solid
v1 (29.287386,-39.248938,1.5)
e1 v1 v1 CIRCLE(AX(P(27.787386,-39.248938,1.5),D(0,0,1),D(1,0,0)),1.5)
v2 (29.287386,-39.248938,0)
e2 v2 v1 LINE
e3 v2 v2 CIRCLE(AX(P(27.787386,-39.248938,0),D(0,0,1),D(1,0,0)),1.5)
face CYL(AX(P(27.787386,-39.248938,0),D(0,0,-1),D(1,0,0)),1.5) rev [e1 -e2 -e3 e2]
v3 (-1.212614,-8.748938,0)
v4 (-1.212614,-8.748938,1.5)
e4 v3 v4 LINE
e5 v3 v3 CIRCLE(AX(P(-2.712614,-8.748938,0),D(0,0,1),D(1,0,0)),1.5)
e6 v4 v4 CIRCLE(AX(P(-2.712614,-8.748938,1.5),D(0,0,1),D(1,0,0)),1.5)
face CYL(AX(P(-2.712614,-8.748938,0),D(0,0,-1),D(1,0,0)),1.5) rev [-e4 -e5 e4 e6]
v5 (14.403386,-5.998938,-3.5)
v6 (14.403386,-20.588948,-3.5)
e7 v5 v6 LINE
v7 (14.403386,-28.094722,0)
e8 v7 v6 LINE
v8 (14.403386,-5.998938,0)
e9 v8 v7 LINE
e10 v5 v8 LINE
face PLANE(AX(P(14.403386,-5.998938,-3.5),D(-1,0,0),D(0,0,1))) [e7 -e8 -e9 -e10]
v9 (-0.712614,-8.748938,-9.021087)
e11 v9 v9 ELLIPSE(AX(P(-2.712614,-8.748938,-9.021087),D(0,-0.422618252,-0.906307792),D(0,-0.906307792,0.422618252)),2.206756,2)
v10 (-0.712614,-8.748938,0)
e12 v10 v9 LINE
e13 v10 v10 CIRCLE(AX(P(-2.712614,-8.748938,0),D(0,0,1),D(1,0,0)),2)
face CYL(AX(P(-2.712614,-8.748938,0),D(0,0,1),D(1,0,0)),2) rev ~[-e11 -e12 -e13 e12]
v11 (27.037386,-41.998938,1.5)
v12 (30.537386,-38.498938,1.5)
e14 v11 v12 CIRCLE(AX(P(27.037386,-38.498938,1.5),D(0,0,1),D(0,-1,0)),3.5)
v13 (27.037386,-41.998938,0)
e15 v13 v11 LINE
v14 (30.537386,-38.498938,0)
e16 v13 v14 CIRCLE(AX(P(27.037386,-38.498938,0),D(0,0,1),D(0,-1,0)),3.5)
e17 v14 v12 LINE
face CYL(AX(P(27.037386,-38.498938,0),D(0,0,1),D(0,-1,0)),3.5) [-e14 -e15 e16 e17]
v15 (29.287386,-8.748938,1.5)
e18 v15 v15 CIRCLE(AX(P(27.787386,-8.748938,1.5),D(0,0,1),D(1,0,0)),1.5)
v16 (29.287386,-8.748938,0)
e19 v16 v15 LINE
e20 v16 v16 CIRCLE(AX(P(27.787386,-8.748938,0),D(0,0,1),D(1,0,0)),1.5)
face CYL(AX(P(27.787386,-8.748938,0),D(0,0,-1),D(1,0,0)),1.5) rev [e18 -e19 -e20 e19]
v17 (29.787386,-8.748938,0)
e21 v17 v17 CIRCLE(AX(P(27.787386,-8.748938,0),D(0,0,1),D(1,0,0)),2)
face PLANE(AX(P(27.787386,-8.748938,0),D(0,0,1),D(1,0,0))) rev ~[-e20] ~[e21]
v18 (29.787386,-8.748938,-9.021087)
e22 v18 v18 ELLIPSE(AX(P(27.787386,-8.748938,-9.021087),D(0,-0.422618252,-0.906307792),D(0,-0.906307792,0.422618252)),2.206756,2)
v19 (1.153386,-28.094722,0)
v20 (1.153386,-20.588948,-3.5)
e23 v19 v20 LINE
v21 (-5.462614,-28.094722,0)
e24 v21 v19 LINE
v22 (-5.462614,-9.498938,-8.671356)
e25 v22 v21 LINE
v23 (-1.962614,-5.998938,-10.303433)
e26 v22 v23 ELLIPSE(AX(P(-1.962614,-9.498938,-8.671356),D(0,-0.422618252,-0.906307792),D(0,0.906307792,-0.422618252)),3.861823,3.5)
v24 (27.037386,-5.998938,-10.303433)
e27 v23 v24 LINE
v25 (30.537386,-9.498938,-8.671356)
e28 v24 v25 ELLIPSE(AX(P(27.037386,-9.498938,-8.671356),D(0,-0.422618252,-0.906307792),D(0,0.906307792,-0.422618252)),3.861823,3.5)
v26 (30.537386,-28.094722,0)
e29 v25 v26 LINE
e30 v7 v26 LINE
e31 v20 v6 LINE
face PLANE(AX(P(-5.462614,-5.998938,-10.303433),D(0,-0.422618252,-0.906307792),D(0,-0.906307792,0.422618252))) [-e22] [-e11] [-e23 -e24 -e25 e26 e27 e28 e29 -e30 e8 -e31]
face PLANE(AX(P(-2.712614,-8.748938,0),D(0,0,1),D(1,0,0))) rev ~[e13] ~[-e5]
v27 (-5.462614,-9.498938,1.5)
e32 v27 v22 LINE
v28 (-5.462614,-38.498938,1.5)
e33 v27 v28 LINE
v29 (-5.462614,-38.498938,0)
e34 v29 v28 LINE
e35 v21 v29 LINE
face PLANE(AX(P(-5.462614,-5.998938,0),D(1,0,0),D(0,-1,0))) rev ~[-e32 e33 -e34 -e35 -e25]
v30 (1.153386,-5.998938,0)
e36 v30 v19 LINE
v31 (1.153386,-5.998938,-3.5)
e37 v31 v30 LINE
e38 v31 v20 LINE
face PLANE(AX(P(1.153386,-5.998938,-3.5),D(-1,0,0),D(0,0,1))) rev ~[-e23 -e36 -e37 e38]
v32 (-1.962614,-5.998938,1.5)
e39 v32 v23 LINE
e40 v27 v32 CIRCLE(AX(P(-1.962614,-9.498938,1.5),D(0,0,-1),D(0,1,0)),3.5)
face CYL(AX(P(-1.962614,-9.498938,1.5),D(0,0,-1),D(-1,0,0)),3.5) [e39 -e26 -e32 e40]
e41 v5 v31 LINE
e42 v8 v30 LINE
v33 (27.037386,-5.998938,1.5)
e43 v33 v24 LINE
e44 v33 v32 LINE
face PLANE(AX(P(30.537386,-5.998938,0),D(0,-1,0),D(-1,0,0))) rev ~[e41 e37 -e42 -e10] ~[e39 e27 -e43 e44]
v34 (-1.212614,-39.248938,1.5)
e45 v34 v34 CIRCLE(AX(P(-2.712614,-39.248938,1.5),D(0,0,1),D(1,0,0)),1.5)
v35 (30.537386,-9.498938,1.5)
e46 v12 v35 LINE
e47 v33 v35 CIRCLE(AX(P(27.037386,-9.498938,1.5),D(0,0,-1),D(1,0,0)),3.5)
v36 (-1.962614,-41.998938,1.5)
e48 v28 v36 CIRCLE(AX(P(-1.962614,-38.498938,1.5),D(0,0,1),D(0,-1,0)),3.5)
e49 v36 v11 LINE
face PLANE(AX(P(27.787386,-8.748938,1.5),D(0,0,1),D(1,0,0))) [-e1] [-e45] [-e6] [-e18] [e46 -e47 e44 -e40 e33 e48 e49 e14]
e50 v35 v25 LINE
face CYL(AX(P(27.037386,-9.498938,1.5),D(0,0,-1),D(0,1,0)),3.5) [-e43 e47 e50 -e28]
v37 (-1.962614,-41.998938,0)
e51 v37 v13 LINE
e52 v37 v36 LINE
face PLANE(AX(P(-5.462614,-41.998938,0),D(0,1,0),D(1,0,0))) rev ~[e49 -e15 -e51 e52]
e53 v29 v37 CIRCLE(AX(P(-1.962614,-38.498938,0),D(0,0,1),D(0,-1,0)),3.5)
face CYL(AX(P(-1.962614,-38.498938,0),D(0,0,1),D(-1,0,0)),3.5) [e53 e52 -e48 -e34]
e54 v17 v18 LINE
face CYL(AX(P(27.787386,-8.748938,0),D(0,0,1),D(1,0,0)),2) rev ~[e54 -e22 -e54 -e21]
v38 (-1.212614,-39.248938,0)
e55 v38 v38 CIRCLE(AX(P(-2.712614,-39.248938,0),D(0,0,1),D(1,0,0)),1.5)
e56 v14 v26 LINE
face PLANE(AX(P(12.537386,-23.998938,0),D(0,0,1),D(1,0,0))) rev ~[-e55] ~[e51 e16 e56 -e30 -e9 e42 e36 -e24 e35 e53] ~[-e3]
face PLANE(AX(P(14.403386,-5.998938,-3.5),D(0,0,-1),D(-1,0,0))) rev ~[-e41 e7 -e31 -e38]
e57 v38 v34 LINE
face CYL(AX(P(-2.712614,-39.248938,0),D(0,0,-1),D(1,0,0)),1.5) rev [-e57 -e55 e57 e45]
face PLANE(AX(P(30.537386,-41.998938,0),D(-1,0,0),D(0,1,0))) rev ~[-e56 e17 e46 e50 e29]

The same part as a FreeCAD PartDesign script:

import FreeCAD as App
import Part
import Sketcher

V = App.Vector
Q = App.Units.Quantity


def edges_at(feature, points):
    """Names of the edges that pass closest to the given points."""
    edges = feature.Shape.Edges
    near = lambda p: min(range(len(edges)), key=lambda i: edges[i].distToShape(Part.Vertex(*p))[0])
    return sorted({f"Edge{near(p) + 1}" for p in points})


def add_polygon(sketch, points):
    """Adds a closed chain of lines whose ends are joined by coincident constraints."""
    first, n = sketch.GeometryCount, len(points)
    for a, b in zip(points, points[1:] + points[:1]):
        sketch.addGeometry(Part.LineSegment(App.Vector(*a, 0), App.Vector(*b, 0)), False)
    for i in range(n):
        sketch.addConstraint(Sketcher.Constraint("Coincident", first + i, 2, first + (i + 1) % n, 1))

doc = App.newDocument("Part")
params = doc.addObject("Spreadsheet::Sheet", "Params")
for row, (alias, value) in enumerate([
    ("sketch1_diameter", "3 mm"),
    ("sketch1_diameter2", "4 mm"),
    ("sketch1_width", "36 mm"),
    ("pad1_length", "1.5 mm"),
    ("sketch2_length", "24.38 mm"),
    ("pad2_length", "36 mm"),
    ("sketch3_height", "3.5 mm"),
    ("sketch3_width", "13.25 mm"),
    ("pocket1_length", "25 mm"),
    ("sketch4_diameter", "4 mm"),
    ("pocket2_length", "25 mm"),
    ("sketch5_diameter", "4 mm"),
    ("sketch5_diameter2", "3 mm"),
    ("pad3_length", "1.5 mm"),
    ("fillet_radius", "3.5 mm"),
], start=1):
    params.set(f"A{row}", alias)
    params.set(f"B{row}", "=" + value)
    params.setAlias(f"B{row}", alias)

body = doc.addObject("PartDesign::Body", "Body")

# Sketch on XY plane
sketch1 = body.newObject("Sketcher::SketchObject", "Sketch")
sketch1.AttachmentSupport = (doc.getObject("XY_Plane"), [""])
sketch1.MapMode = "FlatFace"
add_polygon(sketch1, [(-5.5, -6), (-5.5, -42), (30.5, -42), (30.5, -6)])  # lines 0-3
sketch1.addGeometry(Part.Circle(V(-2.7, -39.2, 0), V(0, 0, 1), 1.5), False)  # 4
sketch1.addGeometry(Part.Circle(V(27.8, -39.2, 0), V(0, 0, 1), 1.5), False)  # 5
sketch1.addGeometry(Part.Circle(V(-2.7, -8.7, 0), V(0, 0, 1), 2), False)  # 6
sketch1.addGeometry(Part.Circle(V(27.8, -8.7, 0), V(0, 0, 1), 2), False)  # 7
sketch1.addConstraint(Sketcher.Constraint("Vertical", 0))
sketch1.addConstraint(Sketcher.Constraint("Horizontal", 1))
sketch1.addConstraint(Sketcher.Constraint("Vertical", 2))
sketch1.addConstraint(Sketcher.Constraint("Horizontal", 3))
sketch1.addConstraint(Sketcher.Constraint("Equal", 4, 5))
sketch1.addConstraint(Sketcher.Constraint("Equal", 6, 7))
sketch1.addConstraint(Sketcher.Constraint("Horizontal", 4, 3, 5, 3))
sketch1.addConstraint(Sketcher.Constraint("Horizontal", 6, 3, 7, 3))
sketch1.addConstraint(Sketcher.Constraint("Vertical", 4, 3, 6, 3))
sketch1.addConstraint(Sketcher.Constraint("Vertical", 5, 3, 7, 3))
sketch1.addConstraint(Sketcher.Constraint("Equal", 3, 0))
sketch1.addConstraint(Sketcher.Constraint("Diameter", 4, 3.0))
sketch1.addConstraint(Sketcher.Constraint("Diameter", 6, 4.0))
sketch1.addConstraint(Sketcher.Constraint("DistanceX", 1, 1, 1, 2, 36.0))
sketch1.addConstraint(Sketcher.Constraint("DistanceX", 4, 3, 5, 3, 30.5))
sketch1.addConstraint(Sketcher.Constraint("DistanceY", 4, 3, 6, 3, 30.5))
sketch1.addConstraint(Sketcher.Constraint("DistanceX", 0, 2, 4, 3, 2.75))
sketch1.addConstraint(Sketcher.Constraint("DistanceY", 0, 2, 4, 3, 2.75))
sketch1.addConstraint(Sketcher.Constraint("DistanceY", 4, 3, -1, 1, 39.248938))
sketch1.addConstraint(Sketcher.Constraint("DistanceX", 4, 3, -1, 1, 2.712614))
sketch1.setExpression("Constraints[15]", "Params.sketch1_diameter")
sketch1.setExpression("Constraints[16]", "Params.sketch1_diameter2")
sketch1.setExpression("Constraints[17]", "Params.sketch1_width")
pad1 = body.newObject("PartDesign::Pad", "Pad")
pad1.Profile = sketch1
pad1.setExpression("Length", "Params.pad1_length")

# Sketch on YZ plane
sketch2 = body.newObject("Sketcher::SketchObject", "Sketch001")
sketch2.AttachmentSupport = (doc.getObject("YZ_Plane"), [""])
sketch2.MapMode = "FlatFace"
sketch2.AttachmentOffset = App.Placement(V(0, 0, -5.462614), App.Rotation())
add_polygon(sketch2, [(-28, 0), (-6, 0), (-6, -10)])  # lines 0-2
sketch2.addConstraint(Sketcher.Constraint("Horizontal", 0))
sketch2.addConstraint(Sketcher.Constraint("Vertical", 1))
sketch2.addConstraint(Sketcher.Constraint("PointOnObject", 0, 2, -1))
sketch2.addConstraint(Sketcher.Constraint("Angle", 2, Q("155.000001 deg")))
sketch2.addConstraint(Sketcher.Constraint("Distance", 2, 24.38))
sketch2.addConstraint(Sketcher.Constraint("DistanceX", 0, 2, -1, 1, 5.998938))
sketch2.setExpression("Constraints[7]", "Params.sketch2_length")
pad2 = body.newObject("PartDesign::Pad", "Pad001")
pad2.Profile = sketch2
pad2.setExpression("Length", "Params.pad2_length")

# Sketch on XZ plane
sketch3 = body.newObject("Sketcher::SketchObject", "Sketch002")
sketch3.AttachmentSupport = (doc.getObject("XZ_Plane"), [""])
sketch3.MapMode = "FlatFace"
sketch3.AttachmentOffset = App.Placement(V(0, 0, 5.998938), App.Rotation())
add_polygon(sketch3, [(14.4, 0), (14.4, -3.5), (1.2, -3.5), (1.2, 0)])  # lines 0-3
sketch3.addConstraint(Sketcher.Constraint("Vertical", 0))
sketch3.addConstraint(Sketcher.Constraint("Horizontal", 1))
sketch3.addConstraint(Sketcher.Constraint("Vertical", 2))
sketch3.addConstraint(Sketcher.Constraint("Horizontal", 3))
sketch3.addConstraint(Sketcher.Constraint("PointOnObject", 2, 2, -1))
sketch3.addConstraint(Sketcher.Constraint("DistanceY", 0, 2, 0, 1, 3.5))
sketch3.addConstraint(Sketcher.Constraint("DistanceX", 1, 2, 1, 1, 13.25))
sketch3.addConstraint(Sketcher.Constraint("DistanceX", -1, 1, 0, 2, 14.403386))
sketch3.setExpression("Constraints[9]", "Params.sketch3_height")
sketch3.setExpression("Constraints[10]", "Params.sketch3_width")
pocket1 = body.newObject("PartDesign::Pocket", "Pocket")
pocket1.Profile = sketch3
pocket1.setExpression("Length", "Params.pocket1_length")
pocket1.Reversed = True

# Sketch on XY plane
sketch4 = body.newObject("Sketcher::SketchObject", "Sketch003")
sketch4.AttachmentSupport = (doc.getObject("XY_Plane"), [""])
sketch4.MapMode = "FlatFace"
sketch4.addGeometry(Part.Circle(V(27.8, -8.7, 0), V(0, 0, 1), 2), False)
sketch4.addGeometry(Part.Circle(V(-2.7, -8.7, 0), V(0, 0, 1), 2), False)
sketch4.addConstraint(Sketcher.Constraint("Equal", 0, 1))
sketch4.addConstraint(Sketcher.Constraint("Horizontal", 0, 3, 1, 3))
sketch4.addConstraint(Sketcher.Constraint("Diameter", 0, 4.0))
sketch4.addConstraint(Sketcher.Constraint("DistanceX", 1, 3, 0, 3, 30.5))
sketch4.addConstraint(Sketcher.Constraint("DistanceY", 0, 3, -1, 1, 8.748938))
sketch4.addConstraint(Sketcher.Constraint("DistanceX", -1, 1, 0, 3, 27.787386))
sketch4.setExpression("Constraints[2]", "Params.sketch4_diameter")
pocket2 = body.newObject("PartDesign::Pocket", "Pocket001")
pocket2.Profile = sketch4
pocket2.setExpression("Length", "Params.pocket2_length")

# Sketch on XY plane
sketch5 = body.newObject("Sketcher::SketchObject", "Sketch004")
sketch5.AttachmentSupport = (doc.getObject("XY_Plane"), [""])
sketch5.MapMode = "FlatFace"
sketch5.addGeometry(Part.Circle(V(27.8, -8.7, 0), V(0, 0, 1), 2), False)
sketch5.addGeometry(Part.Circle(V(27.8, -8.7, 0), V(0, 0, 1), 1.5), False)
sketch5.addGeometry(Part.Circle(V(-2.7, -8.7, 0), V(0, 0, 1), 2), False)
sketch5.addGeometry(Part.Circle(V(-2.7, -8.7, 0), V(0, 0, 1), 1.5), False)
sketch5.addConstraint(Sketcher.Constraint("Coincident", 1, 3, 0, 3))
sketch5.addConstraint(Sketcher.Constraint("Coincident", 3, 3, 2, 3))
sketch5.addConstraint(Sketcher.Constraint("Equal", 0, 2))
sketch5.addConstraint(Sketcher.Constraint("Equal", 1, 3))
sketch5.addConstraint(Sketcher.Constraint("Horizontal", 1, 3, 2, 3))
sketch5.addConstraint(Sketcher.Constraint("Diameter", 0, 4.0))
sketch5.addConstraint(Sketcher.Constraint("Diameter", 1, 3.0))
sketch5.addConstraint(Sketcher.Constraint("DistanceX", 2, 3, 0, 3, 30.5))
sketch5.addConstraint(Sketcher.Constraint("DistanceY", 0, 3, -1, 1, 8.748938))
sketch5.addConstraint(Sketcher.Constraint("DistanceX", -1, 1, 0, 3, 27.787386))
sketch5.setExpression("Constraints[5]", "Params.sketch5_diameter")
sketch5.setExpression("Constraints[6]", "Params.sketch5_diameter2")
pad3 = body.newObject("PartDesign::Pad", "Pad002")
pad3.Profile = sketch5
pad3.setExpression("Length", "Params.pad3_length")
doc.recompute()

fillet = body.newObject("PartDesign::Fillet", "Fillet")
fillet.Base = (pad3, edges_at(pad3, [
    (-5.463, -5.999, -4.402),
    (-5.463, -41.999, 0.75),
    (30.537, -5.999, -4.402),
    (30.537, -41.999, 0.75),
]))
fillet.setExpression("Radius", "Params.fillet_radius")

doc.recompute()
